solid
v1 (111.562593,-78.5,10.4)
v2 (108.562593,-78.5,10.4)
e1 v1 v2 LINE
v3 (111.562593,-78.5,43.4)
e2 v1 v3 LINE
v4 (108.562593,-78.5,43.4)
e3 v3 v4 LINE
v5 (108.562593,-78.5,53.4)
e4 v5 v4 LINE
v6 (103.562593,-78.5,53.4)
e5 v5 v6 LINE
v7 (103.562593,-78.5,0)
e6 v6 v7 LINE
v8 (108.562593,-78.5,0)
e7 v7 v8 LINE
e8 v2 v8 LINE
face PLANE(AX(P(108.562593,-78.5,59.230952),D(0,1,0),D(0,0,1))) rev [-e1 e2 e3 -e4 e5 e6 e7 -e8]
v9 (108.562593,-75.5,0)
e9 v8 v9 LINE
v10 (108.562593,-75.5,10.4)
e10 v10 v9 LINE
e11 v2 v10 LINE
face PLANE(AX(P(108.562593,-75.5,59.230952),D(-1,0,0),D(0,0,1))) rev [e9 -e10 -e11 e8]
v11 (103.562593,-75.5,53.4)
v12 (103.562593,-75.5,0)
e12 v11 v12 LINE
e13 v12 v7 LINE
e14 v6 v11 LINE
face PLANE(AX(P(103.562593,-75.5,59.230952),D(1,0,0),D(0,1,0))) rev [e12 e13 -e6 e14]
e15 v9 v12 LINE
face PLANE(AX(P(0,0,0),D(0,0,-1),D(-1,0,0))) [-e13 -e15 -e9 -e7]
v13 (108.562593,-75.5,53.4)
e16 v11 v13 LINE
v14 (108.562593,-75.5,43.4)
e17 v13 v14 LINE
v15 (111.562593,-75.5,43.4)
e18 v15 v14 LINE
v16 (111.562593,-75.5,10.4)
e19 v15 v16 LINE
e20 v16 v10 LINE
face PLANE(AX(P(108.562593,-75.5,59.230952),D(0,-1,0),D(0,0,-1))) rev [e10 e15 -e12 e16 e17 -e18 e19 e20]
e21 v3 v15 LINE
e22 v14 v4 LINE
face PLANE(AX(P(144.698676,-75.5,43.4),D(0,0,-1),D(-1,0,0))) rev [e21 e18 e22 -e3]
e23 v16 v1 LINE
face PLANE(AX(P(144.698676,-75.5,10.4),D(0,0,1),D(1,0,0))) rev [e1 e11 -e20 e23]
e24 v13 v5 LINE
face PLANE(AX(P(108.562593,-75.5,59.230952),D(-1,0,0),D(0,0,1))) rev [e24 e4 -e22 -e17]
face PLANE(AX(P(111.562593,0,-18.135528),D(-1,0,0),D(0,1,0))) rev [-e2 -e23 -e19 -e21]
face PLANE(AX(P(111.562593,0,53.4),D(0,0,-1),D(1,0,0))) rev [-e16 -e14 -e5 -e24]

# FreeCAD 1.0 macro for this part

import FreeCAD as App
import Part
import Sketcher

V = App.Vector
Q = App.Units.Quantity


def add_polygon(sketch, points):
    """Adds a closed chain of lines whose ends are joined by coincident constraints."""
    first, n = sketch.GeometryCount, len(points)
    for a, b in zip(points, points[1:] + points[:1]):
        sketch.addGeometry(Part.LineSegment(App.Vector(*a, 0), App.Vector(*b, 0)), False)
    for i in range(n):
        sketch.addConstraint(Sketcher.Constraint("Coincident", first + i, 2, first + (i + 1) % n, 1))

doc = App.newDocument("Part")
body = doc.addObject("PartDesign::Body", "Body")

sketch1 = body.newObject("Sketcher::SketchObject", "Sketch")
sketch1.AttachmentSupport = (doc.getObject("XY_Plane"), [""])
sketch1.MapMode = "FlatFace"
add_polygon(sketch1, [(103.562593, -75.5), (103.562593, -78.5), (108.562593, -78.5), (108.562593, -75.5)])
sketch1.addConstraint(Sketcher.Constraint("Vertical", 0))
sketch1.addConstraint(Sketcher.Constraint("Horizontal", 1))
sketch1.addConstraint(Sketcher.Constraint("Vertical", 2))
sketch1.addConstraint(Sketcher.Constraint("Horizontal", 3))
sketch1.addConstraint(Sketcher.Constraint("DistanceX", 1, 1, 1, 2, Q("5 mm")))
sketch1.addConstraint(Sketcher.Constraint("DistanceY", 0, 2, 0, 1, Q("3 mm")))
sketch1.addConstraint(Sketcher.Constraint("DistanceY", 0, 2, -1, 1, Q("78.5 mm")))
sketch1.addConstraint(Sketcher.Constraint("DistanceX", -1, 1, 0, 2, Q("103.562593 mm")))
pad1 = body.newObject("PartDesign::Pad", "Pad")
pad1.Profile = sketch1
pad1.Length = 53.4

sketch2 = body.newObject("Sketcher::SketchObject", "Sketch001")
sketch2.AttachmentSupport = (doc.getObject("YZ_Plane"), [""])
sketch2.MapMode = "FlatFace"
sketch2.AttachmentOffset = App.Placement(V(0, 0, 108.562593), App.Rotation())
add_polygon(sketch2, [(-75.5, 43.4), (-78.5, 43.4), (-78.5, 10.4), (-75.5, 10.4)])
sketch2.addConstraint(Sketcher.Constraint("Horizontal", 0))
sketch2.addConstraint(Sketcher.Constraint("Vertical", 1))
sketch2.addConstraint(Sketcher.Constraint("Horizontal", 2))
sketch2.addConstraint(Sketcher.Constraint("Vertical", 3))
sketch2.addConstraint(Sketcher.Constraint("DistanceX", 0, 2, 0, 1, Q("3 mm")))
sketch2.addConstraint(Sketcher.Constraint("DistanceY", 1, 2, 1, 1, Q("33 mm")))
sketch2.addConstraint(Sketcher.Constraint("DistanceX", 0, 2, -1, 1, Q("78.5 mm")))
sketch2.addConstraint(Sketcher.Constraint("DistanceY", -1, 1, 0, 2, Q("43.4 mm")))
pad2 = body.newObject("PartDesign::Pad", "Pad001")
pad2.Profile = sketch2
pad2.Length = 3

doc.recompute()
